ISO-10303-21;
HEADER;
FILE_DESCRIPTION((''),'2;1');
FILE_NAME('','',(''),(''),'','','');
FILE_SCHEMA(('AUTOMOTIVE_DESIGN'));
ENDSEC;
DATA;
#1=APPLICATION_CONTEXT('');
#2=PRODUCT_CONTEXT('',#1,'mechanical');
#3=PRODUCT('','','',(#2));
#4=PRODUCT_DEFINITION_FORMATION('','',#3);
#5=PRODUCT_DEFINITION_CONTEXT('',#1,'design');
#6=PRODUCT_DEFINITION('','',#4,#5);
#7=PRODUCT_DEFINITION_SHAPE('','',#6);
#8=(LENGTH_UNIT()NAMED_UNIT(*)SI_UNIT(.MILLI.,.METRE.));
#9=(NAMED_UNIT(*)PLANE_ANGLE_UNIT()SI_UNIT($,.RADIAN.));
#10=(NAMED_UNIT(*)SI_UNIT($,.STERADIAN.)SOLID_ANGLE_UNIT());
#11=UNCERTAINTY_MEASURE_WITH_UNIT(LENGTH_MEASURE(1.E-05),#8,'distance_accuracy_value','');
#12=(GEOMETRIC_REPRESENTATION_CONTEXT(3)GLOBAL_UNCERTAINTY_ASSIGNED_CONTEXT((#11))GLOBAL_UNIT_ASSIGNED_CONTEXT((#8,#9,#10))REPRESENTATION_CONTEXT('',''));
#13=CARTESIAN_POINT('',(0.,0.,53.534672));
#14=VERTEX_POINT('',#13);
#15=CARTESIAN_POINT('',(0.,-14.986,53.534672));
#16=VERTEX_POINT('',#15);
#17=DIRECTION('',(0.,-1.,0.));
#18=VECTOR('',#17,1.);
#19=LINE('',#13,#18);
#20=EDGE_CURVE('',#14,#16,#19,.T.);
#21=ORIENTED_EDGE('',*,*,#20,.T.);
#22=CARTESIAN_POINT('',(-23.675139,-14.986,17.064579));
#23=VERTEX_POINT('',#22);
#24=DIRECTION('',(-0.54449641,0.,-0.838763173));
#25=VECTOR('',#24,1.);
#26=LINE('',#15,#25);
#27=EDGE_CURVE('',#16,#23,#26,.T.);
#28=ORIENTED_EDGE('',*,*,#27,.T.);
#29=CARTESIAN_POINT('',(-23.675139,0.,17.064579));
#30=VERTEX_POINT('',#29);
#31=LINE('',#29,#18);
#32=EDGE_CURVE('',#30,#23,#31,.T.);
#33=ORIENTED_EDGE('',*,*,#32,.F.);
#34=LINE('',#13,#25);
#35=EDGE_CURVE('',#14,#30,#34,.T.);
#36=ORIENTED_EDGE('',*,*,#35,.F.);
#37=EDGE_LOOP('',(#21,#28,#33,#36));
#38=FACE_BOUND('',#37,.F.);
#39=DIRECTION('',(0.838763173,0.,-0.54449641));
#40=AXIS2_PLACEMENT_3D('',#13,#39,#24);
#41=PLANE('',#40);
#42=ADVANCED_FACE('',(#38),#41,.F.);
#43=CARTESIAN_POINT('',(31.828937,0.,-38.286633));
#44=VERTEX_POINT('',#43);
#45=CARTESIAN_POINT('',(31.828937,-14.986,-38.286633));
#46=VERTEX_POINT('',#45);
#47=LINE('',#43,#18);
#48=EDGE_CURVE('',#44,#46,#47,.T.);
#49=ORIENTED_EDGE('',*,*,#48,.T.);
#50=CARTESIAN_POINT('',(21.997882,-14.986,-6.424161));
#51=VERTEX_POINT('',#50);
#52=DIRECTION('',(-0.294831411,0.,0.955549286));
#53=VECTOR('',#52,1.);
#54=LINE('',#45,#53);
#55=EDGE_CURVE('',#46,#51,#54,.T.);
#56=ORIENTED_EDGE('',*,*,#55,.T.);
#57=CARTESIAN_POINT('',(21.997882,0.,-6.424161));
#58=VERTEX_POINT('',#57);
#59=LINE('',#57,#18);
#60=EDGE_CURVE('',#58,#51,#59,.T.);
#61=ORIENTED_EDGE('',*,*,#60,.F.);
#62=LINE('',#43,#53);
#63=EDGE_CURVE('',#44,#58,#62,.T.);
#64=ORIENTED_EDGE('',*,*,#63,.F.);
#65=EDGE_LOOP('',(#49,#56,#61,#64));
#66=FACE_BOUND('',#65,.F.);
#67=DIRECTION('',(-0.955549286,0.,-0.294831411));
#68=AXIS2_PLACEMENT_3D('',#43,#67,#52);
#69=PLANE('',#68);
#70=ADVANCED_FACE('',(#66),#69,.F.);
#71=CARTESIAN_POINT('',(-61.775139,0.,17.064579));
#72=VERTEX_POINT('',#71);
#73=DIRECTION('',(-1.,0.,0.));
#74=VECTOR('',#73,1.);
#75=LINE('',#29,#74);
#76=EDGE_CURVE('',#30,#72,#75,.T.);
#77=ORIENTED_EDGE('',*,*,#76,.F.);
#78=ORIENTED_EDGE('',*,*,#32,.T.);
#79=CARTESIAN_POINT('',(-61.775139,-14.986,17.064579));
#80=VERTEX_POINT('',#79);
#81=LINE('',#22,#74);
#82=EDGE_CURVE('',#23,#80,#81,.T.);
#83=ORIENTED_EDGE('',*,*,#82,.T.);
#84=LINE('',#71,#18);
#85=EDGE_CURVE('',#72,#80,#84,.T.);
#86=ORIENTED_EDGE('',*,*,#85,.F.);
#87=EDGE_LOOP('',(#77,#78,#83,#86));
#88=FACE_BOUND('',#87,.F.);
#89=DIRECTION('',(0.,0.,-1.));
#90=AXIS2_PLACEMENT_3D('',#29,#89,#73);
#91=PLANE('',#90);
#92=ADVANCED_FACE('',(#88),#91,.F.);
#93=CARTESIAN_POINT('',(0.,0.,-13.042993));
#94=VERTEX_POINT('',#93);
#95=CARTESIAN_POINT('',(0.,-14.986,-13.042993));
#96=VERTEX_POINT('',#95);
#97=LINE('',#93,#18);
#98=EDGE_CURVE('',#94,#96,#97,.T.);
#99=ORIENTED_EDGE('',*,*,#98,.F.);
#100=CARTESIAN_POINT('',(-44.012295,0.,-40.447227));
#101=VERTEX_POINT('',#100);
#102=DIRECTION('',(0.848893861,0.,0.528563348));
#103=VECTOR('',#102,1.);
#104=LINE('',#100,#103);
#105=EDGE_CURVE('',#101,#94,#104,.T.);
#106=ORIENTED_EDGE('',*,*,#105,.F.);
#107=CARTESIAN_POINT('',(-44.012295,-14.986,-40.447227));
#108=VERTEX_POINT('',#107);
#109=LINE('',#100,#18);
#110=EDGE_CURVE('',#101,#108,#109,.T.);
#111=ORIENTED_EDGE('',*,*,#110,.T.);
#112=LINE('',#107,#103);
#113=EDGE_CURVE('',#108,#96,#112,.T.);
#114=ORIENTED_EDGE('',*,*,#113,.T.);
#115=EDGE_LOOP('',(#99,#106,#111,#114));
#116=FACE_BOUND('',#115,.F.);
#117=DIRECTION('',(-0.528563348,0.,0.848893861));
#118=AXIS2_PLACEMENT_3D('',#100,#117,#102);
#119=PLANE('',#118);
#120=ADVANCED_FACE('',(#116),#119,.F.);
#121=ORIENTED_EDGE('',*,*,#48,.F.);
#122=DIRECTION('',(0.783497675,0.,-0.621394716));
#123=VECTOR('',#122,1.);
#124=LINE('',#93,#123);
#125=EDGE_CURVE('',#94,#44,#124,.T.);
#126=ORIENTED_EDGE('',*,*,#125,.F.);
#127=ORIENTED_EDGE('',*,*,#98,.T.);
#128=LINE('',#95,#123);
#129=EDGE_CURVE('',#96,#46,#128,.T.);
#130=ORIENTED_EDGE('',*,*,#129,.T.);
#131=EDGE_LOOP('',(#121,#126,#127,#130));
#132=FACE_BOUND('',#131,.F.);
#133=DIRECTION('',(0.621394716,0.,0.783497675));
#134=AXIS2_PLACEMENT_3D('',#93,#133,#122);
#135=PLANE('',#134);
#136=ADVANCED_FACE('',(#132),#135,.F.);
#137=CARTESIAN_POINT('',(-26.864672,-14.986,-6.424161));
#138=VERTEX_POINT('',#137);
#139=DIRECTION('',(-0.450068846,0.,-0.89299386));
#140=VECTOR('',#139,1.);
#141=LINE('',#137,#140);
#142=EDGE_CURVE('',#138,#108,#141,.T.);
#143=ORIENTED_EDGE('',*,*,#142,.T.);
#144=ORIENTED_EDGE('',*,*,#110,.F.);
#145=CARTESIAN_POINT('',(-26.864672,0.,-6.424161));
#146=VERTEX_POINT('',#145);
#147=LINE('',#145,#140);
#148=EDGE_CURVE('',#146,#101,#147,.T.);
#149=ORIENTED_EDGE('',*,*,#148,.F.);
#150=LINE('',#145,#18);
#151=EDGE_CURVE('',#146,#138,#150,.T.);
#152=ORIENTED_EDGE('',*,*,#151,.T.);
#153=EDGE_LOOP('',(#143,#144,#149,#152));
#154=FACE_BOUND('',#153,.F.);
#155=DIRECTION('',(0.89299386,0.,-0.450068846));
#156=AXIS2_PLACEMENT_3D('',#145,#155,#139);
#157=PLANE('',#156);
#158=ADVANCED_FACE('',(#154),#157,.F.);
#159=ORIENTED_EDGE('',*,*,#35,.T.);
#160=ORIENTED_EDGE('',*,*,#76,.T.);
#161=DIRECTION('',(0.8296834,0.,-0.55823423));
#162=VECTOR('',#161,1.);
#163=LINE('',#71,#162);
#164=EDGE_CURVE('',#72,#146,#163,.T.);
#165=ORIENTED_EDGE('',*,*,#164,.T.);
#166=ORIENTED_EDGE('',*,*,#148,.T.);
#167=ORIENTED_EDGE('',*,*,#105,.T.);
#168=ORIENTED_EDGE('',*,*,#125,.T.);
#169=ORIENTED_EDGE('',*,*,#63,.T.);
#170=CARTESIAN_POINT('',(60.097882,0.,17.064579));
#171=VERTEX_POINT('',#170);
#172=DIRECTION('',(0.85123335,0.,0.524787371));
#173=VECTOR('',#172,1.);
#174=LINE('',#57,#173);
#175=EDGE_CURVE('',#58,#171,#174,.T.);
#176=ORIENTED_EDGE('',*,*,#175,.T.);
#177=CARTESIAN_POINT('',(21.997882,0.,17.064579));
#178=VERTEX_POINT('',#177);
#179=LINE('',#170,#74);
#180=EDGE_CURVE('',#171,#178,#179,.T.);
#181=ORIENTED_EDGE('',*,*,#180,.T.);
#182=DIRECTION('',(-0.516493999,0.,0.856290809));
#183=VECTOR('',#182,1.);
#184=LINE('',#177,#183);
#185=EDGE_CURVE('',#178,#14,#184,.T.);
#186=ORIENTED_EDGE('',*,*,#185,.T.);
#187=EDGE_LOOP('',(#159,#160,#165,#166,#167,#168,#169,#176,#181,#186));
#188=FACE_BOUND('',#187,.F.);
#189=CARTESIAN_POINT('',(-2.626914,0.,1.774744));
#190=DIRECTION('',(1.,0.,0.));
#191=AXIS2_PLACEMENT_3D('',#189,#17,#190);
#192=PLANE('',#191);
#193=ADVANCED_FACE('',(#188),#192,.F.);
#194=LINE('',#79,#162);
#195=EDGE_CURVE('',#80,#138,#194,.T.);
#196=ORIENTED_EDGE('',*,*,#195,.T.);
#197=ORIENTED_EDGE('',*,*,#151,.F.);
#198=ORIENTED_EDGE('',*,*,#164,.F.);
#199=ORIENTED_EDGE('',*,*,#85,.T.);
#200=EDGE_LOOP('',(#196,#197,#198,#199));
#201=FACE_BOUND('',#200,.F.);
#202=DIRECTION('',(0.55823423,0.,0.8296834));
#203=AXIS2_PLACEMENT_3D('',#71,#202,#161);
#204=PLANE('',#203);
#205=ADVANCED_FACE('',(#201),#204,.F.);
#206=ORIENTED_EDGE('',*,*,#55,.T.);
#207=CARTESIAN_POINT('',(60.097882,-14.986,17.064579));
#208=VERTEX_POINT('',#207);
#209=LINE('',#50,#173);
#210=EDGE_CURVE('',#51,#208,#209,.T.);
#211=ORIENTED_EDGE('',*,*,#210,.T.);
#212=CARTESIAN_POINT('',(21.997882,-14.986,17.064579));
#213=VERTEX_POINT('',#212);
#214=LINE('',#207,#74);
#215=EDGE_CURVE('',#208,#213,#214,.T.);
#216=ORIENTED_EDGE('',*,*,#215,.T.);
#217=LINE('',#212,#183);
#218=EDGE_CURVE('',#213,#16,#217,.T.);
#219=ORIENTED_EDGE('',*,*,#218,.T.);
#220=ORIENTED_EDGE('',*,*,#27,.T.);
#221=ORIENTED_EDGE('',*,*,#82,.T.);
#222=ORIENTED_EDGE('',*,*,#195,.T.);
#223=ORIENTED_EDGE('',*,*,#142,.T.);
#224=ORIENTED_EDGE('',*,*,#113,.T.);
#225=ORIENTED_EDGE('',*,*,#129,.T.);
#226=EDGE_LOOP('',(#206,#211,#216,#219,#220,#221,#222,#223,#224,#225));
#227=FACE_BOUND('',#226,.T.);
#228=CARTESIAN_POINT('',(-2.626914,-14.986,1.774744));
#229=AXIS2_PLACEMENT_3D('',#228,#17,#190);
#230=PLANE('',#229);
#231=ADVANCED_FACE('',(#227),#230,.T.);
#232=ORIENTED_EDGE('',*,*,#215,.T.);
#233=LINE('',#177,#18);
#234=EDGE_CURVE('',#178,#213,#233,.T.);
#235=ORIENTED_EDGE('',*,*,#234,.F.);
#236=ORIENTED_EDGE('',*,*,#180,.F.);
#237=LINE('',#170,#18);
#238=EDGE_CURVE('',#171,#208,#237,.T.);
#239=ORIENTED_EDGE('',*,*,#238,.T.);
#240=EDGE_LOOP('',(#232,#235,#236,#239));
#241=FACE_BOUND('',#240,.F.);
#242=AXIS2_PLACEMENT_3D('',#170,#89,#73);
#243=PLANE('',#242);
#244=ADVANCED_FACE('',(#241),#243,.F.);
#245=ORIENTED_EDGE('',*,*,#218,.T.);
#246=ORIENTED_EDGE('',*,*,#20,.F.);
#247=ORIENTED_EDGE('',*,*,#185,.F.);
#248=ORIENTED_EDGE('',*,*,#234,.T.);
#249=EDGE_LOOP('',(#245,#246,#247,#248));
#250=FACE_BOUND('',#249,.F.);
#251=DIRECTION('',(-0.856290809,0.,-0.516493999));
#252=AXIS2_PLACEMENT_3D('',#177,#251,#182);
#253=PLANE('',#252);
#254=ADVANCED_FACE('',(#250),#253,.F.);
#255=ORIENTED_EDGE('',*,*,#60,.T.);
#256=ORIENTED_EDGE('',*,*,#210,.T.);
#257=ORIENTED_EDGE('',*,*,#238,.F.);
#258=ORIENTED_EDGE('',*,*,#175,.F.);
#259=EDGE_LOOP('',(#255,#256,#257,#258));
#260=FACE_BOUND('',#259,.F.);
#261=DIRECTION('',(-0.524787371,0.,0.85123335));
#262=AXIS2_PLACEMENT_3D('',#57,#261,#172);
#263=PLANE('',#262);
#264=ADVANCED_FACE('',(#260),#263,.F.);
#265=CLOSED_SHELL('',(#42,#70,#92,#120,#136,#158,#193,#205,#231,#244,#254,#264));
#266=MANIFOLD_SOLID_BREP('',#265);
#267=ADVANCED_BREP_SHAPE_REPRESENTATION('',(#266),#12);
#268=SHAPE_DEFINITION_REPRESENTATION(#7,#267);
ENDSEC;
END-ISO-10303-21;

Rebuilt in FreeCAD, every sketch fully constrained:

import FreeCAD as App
import Part
import Sketcher

V = App.Vector
Q = App.Units.Quantity


def add_polygon(sketch, points):
    """Adds a closed chain of lines whose ends are joined by coincident constraints."""
    first, n = sketch.GeometryCount, len(points)
    for a, b in zip(points, points[1:] + points[:1]):
        sketch.addGeometry(Part.LineSegment(App.Vector(*a, 0), App.Vector(*b, 0)), False)
    for i in range(n):
        sketch.addConstraint(Sketcher.Constraint("Coincident", first + i, 2, first + (i + 1) % n, 1))

doc = App.newDocument("Part")
params = doc.addObject("Spreadsheet::Sheet", "Params")
for row, (alias, value) in enumerate([
    ("sketch1_width", "1.5 in"),
    ("sketch1_length", "1.5 in"),
    ("pad1_length", "0.59 in"),
], start=1):
    params.set(f"A{row}", alias)
    params.set(f"B{row}", "=" + value)
    params.setAlias(f"B{row}", alias)

body = doc.addObject("PartDesign::Body", "Body")

# Sketch on XZ plane
sketch1 = body.newObject("Sketcher::SketchObject", "Sketch")
sketch1.AttachmentSupport = (doc.getObject("XZ_Plane"), [""])
sketch1.MapMode = "FlatFace"
add_polygon(sketch1, [(0, 54), (-24, 17), (-62, 17), (-27, -6), (-44, -40), (0, -13), (32, -38), (22, -6), (60, 17), (22, 17)])  # lines 0-9
sketch1.addConstraint(Sketcher.Constraint("Horizontal", 1))
sketch1.addConstraint(Sketcher.Constraint("Horizontal", 8))
sketch1.addConstraint(Sketcher.Constraint("PointOnObject", 4, 2, -2))
sketch1.addConstraint(Sketcher.Constraint("PointOnObject", 9, 2, -2))
sketch1.addConstraint(Sketcher.Constraint("Horizontal", 2, 2, 6, 2))
sketch1.addConstraint(Sketcher.Constraint("Horizontal", 1, 2, 7, 2))
sketch1.addConstraint(Sketcher.Constraint("Vertical", 6, 2, 8, 2))
sketch1.addConstraint(Sketcher.Constraint("Equal", 1, 8))
sketch1.addConstraint(Sketcher.Constraint("DistanceX", 1, 2, 1, 1, Q("1.5 in")))
sketch1.addConstraint(Sketcher.Constraint("Distance", 3, Q("1.5 in")))
sketch1.addConstraint(Sketcher.Constraint("DistanceX", 0, 2, 5, 2, Q("2.1851998 in")))
sketch1.addConstraint(Sketcher.Constraint("Distance", 0, Q("43.480799 mm")))
sketch1.addConstraint(Sketcher.Constraint("Distance", 4, Q("51.846641 mm")))
sketch1.addConstraint(Sketcher.Constraint("Distance", 9, Q("42.590779 mm")))
sketch1.addConstraint(Sketcher.Constraint("DistanceX", 0, 2, -1, 1, Q("23.675139 mm")))
sketch1.addConstraint(Sketcher.Constraint("DistanceY", -1, 1, 0, 2, Q("17.064579 mm")))
sketch1.addConstraint(Sketcher.Constraint("DistanceX", 2, 2, -1, 1, Q("26.864672 mm")))
sketch1.addConstraint(Sketcher.Constraint("DistanceY", 2, 2, -1, 1, Q("6.424161 mm")))
sketch1.addConstraint(Sketcher.Constraint("DistanceY", 4, 2, 2, 2, Q("6.618832 mm")))
sketch1.addConstraint(Sketcher.Constraint("DistanceY", 5, 2, 4, 2, Q("25.24364 mm")))
sketch1.setExpression("Constraints[18]", "Params.sketch1_width")
sketch1.setExpression("Constraints[19]", "Params.sketch1_length")
pad1 = body.newObject("PartDesign::Pad", "Pad")
pad1.Profile = sketch1
pad1.setExpression("Length", "Params.pad1_length")

doc.recompute()
